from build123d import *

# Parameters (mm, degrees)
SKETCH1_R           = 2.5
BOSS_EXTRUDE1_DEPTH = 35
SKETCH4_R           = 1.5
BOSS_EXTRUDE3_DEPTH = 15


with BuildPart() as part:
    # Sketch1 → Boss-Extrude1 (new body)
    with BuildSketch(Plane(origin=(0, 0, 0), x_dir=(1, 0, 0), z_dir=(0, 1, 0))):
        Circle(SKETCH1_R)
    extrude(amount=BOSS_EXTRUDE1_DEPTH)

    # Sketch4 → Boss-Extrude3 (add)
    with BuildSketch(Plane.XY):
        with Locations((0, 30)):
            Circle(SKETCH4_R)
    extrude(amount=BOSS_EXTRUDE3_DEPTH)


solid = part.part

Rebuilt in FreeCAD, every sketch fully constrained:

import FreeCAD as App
import Part
import Sketcher
from FreeCAD import Vector
Q = App.Units.Quantity

doc = App.newDocument("Part")
body = doc.addObject("PartDesign::Body", "Body")

sketch1 = doc.addObject("Sketcher::SketchObject", "Sketch")
body.addObject(sketch1)
sketch1.AttachmentSupport = (doc.XZ_Plane, [""])
sketch1.MapMode = "FlatFace"
sketch1.addGeometry(Part.Circle(Vector(0, 0, 0), Vector(0, 0, 1), 2.5), False)
sketch1.addConstraint(Sketcher.Constraint("Coincident", 0, 3, -1, 1))
sketch1.addConstraint(Sketcher.Constraint("Diameter", 0, Q("5 mm")))
pad1 = doc.addObject("PartDesign::Pad", "Pad")
body.addObject(pad1)
pad1.Profile = sketch1
pad1.Length = 35
pad1.Reversed = True

sketch2 = doc.addObject("Sketcher::SketchObject", "Sketch001")
body.addObject(sketch2)
sketch2.AttachmentSupport = (doc.XY_Plane, [""])
sketch2.MapMode = "FlatFace"
sketch2.addGeometry(Part.Circle(Vector(0, 30, 0), Vector(0, 0, 1), 1.5), False)
sketch2.addConstraint(Sketcher.Constraint("PointOnObject", 0, 3, -2))
sketch2.addConstraint(Sketcher.Constraint("Diameter", 0, Q("3 mm")))
sketch2.addConstraint(Sketcher.Constraint("DistanceY", -1, 1, 0, 3, Q("30 mm")))
pad2 = doc.addObject("PartDesign::Pad", "Pad001")
body.addObject(pad2)
pad2.Profile = sketch2
pad2.Length = 15

doc.recompute()
